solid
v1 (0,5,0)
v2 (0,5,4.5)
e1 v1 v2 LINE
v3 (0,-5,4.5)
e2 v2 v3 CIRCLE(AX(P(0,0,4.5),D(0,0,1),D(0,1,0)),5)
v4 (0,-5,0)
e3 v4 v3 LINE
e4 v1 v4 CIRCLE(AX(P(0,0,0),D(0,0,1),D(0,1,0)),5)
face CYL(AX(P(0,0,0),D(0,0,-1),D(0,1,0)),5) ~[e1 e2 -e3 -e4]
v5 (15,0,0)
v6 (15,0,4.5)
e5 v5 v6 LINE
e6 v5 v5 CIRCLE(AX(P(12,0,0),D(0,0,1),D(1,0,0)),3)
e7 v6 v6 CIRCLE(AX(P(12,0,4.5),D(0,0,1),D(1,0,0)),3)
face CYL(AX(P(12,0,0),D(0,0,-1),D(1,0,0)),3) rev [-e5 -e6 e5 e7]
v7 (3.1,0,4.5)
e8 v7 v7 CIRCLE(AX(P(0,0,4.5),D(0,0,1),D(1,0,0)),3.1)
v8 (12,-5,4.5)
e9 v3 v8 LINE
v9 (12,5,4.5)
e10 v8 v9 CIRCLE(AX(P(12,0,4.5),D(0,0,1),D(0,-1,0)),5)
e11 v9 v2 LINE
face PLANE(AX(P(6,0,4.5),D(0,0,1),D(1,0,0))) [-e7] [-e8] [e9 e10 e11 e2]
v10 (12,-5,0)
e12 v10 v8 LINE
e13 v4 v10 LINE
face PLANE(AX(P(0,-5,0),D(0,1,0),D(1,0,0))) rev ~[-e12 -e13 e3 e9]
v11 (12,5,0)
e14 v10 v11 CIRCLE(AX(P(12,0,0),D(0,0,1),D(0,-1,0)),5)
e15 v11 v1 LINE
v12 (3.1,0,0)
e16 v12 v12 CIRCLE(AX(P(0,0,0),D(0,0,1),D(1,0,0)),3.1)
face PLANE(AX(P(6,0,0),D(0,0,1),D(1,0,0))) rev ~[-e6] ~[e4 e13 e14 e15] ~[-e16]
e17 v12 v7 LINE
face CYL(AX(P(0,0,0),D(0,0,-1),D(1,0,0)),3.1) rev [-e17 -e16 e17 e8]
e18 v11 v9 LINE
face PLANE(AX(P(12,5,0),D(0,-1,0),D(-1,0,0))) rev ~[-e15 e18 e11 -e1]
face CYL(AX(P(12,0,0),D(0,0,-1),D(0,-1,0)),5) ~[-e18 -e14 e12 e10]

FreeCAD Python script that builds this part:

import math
import FreeCAD as App
import Part
import Sketcher
Q = App.Units.Quantity

doc = App.newDocument("Part")
body = doc.addObject("PartDesign::Body", "Body")

sketch1 = body.newObject("Sketcher::SketchObject", "Sketch")
sketch1.AttachmentSupport = (doc.getObject("XY_Plane"), [""])
sketch1.MapMode = "FlatFace"
sketch1.addGeometry(Part.ArcOfCircle(Part.Circle(App.Vector(0, 0, 0), App.Vector(0, 0, 1), 5), math.radians(90), math.radians(270)), False)
sketch1.addGeometry(Part.LineSegment(App.Vector(0, -5, 0), App.Vector(12, -5, 0)), False)
sketch1.addGeometry(Part.ArcOfCircle(Part.Circle(App.Vector(12, 0, 0), App.Vector(0, 0, 1), 5), math.radians(-90), math.radians(90)), False)
sketch1.addGeometry(Part.LineSegment(App.Vector(12, 5, 0), App.Vector(0, 5, 0)), False)
sketch1.addGeometry(Part.Circle(App.Vector(0, 0, 0), App.Vector(0, 0, 1), 3.1), False)
sketch1.addGeometry(Part.Circle(App.Vector(12, 0, 0), App.Vector(0, 0, 1), 3), False)
sketch1.addConstraint(Sketcher.Constraint("Tangent", 0, 2, 1, 1))
sketch1.addConstraint(Sketcher.Constraint("Tangent", 1, 2, 2, 1))
sketch1.addConstraint(Sketcher.Constraint("Tangent", 2, 2, 3, 1))
sketch1.addConstraint(Sketcher.Constraint("Tangent", 3, 2, 0, 1))
sketch1.addConstraint(Sketcher.Constraint("Horizontal", 1))
sketch1.addConstraint(Sketcher.Constraint("Horizontal", 3))
sketch1.addConstraint(Sketcher.Constraint("Coincident", 0, 3, -1, 1))
sketch1.addConstraint(Sketcher.Constraint("Coincident", 4, 3, -1, 1))
sketch1.addConstraint(Sketcher.Constraint("Coincident", 5, 3, 2, 3))
sketch1.addConstraint(Sketcher.Constraint("Diameter", 5, Q("6 mm")))
sketch1.addConstraint(Sketcher.Constraint("Radius", 0, Q("5 mm")))
sketch1.addConstraint(Sketcher.Constraint("Diameter", 4, Q("6.2 mm")))
sketch1.addConstraint(Sketcher.Constraint("DistanceX", 1, 1, 1, 2, Q("12 mm")))
pad1 = body.newObject("PartDesign::Pad", "Pad")
pad1.Profile = sketch1
pad1.Length = 4.5

doc.recompute()
